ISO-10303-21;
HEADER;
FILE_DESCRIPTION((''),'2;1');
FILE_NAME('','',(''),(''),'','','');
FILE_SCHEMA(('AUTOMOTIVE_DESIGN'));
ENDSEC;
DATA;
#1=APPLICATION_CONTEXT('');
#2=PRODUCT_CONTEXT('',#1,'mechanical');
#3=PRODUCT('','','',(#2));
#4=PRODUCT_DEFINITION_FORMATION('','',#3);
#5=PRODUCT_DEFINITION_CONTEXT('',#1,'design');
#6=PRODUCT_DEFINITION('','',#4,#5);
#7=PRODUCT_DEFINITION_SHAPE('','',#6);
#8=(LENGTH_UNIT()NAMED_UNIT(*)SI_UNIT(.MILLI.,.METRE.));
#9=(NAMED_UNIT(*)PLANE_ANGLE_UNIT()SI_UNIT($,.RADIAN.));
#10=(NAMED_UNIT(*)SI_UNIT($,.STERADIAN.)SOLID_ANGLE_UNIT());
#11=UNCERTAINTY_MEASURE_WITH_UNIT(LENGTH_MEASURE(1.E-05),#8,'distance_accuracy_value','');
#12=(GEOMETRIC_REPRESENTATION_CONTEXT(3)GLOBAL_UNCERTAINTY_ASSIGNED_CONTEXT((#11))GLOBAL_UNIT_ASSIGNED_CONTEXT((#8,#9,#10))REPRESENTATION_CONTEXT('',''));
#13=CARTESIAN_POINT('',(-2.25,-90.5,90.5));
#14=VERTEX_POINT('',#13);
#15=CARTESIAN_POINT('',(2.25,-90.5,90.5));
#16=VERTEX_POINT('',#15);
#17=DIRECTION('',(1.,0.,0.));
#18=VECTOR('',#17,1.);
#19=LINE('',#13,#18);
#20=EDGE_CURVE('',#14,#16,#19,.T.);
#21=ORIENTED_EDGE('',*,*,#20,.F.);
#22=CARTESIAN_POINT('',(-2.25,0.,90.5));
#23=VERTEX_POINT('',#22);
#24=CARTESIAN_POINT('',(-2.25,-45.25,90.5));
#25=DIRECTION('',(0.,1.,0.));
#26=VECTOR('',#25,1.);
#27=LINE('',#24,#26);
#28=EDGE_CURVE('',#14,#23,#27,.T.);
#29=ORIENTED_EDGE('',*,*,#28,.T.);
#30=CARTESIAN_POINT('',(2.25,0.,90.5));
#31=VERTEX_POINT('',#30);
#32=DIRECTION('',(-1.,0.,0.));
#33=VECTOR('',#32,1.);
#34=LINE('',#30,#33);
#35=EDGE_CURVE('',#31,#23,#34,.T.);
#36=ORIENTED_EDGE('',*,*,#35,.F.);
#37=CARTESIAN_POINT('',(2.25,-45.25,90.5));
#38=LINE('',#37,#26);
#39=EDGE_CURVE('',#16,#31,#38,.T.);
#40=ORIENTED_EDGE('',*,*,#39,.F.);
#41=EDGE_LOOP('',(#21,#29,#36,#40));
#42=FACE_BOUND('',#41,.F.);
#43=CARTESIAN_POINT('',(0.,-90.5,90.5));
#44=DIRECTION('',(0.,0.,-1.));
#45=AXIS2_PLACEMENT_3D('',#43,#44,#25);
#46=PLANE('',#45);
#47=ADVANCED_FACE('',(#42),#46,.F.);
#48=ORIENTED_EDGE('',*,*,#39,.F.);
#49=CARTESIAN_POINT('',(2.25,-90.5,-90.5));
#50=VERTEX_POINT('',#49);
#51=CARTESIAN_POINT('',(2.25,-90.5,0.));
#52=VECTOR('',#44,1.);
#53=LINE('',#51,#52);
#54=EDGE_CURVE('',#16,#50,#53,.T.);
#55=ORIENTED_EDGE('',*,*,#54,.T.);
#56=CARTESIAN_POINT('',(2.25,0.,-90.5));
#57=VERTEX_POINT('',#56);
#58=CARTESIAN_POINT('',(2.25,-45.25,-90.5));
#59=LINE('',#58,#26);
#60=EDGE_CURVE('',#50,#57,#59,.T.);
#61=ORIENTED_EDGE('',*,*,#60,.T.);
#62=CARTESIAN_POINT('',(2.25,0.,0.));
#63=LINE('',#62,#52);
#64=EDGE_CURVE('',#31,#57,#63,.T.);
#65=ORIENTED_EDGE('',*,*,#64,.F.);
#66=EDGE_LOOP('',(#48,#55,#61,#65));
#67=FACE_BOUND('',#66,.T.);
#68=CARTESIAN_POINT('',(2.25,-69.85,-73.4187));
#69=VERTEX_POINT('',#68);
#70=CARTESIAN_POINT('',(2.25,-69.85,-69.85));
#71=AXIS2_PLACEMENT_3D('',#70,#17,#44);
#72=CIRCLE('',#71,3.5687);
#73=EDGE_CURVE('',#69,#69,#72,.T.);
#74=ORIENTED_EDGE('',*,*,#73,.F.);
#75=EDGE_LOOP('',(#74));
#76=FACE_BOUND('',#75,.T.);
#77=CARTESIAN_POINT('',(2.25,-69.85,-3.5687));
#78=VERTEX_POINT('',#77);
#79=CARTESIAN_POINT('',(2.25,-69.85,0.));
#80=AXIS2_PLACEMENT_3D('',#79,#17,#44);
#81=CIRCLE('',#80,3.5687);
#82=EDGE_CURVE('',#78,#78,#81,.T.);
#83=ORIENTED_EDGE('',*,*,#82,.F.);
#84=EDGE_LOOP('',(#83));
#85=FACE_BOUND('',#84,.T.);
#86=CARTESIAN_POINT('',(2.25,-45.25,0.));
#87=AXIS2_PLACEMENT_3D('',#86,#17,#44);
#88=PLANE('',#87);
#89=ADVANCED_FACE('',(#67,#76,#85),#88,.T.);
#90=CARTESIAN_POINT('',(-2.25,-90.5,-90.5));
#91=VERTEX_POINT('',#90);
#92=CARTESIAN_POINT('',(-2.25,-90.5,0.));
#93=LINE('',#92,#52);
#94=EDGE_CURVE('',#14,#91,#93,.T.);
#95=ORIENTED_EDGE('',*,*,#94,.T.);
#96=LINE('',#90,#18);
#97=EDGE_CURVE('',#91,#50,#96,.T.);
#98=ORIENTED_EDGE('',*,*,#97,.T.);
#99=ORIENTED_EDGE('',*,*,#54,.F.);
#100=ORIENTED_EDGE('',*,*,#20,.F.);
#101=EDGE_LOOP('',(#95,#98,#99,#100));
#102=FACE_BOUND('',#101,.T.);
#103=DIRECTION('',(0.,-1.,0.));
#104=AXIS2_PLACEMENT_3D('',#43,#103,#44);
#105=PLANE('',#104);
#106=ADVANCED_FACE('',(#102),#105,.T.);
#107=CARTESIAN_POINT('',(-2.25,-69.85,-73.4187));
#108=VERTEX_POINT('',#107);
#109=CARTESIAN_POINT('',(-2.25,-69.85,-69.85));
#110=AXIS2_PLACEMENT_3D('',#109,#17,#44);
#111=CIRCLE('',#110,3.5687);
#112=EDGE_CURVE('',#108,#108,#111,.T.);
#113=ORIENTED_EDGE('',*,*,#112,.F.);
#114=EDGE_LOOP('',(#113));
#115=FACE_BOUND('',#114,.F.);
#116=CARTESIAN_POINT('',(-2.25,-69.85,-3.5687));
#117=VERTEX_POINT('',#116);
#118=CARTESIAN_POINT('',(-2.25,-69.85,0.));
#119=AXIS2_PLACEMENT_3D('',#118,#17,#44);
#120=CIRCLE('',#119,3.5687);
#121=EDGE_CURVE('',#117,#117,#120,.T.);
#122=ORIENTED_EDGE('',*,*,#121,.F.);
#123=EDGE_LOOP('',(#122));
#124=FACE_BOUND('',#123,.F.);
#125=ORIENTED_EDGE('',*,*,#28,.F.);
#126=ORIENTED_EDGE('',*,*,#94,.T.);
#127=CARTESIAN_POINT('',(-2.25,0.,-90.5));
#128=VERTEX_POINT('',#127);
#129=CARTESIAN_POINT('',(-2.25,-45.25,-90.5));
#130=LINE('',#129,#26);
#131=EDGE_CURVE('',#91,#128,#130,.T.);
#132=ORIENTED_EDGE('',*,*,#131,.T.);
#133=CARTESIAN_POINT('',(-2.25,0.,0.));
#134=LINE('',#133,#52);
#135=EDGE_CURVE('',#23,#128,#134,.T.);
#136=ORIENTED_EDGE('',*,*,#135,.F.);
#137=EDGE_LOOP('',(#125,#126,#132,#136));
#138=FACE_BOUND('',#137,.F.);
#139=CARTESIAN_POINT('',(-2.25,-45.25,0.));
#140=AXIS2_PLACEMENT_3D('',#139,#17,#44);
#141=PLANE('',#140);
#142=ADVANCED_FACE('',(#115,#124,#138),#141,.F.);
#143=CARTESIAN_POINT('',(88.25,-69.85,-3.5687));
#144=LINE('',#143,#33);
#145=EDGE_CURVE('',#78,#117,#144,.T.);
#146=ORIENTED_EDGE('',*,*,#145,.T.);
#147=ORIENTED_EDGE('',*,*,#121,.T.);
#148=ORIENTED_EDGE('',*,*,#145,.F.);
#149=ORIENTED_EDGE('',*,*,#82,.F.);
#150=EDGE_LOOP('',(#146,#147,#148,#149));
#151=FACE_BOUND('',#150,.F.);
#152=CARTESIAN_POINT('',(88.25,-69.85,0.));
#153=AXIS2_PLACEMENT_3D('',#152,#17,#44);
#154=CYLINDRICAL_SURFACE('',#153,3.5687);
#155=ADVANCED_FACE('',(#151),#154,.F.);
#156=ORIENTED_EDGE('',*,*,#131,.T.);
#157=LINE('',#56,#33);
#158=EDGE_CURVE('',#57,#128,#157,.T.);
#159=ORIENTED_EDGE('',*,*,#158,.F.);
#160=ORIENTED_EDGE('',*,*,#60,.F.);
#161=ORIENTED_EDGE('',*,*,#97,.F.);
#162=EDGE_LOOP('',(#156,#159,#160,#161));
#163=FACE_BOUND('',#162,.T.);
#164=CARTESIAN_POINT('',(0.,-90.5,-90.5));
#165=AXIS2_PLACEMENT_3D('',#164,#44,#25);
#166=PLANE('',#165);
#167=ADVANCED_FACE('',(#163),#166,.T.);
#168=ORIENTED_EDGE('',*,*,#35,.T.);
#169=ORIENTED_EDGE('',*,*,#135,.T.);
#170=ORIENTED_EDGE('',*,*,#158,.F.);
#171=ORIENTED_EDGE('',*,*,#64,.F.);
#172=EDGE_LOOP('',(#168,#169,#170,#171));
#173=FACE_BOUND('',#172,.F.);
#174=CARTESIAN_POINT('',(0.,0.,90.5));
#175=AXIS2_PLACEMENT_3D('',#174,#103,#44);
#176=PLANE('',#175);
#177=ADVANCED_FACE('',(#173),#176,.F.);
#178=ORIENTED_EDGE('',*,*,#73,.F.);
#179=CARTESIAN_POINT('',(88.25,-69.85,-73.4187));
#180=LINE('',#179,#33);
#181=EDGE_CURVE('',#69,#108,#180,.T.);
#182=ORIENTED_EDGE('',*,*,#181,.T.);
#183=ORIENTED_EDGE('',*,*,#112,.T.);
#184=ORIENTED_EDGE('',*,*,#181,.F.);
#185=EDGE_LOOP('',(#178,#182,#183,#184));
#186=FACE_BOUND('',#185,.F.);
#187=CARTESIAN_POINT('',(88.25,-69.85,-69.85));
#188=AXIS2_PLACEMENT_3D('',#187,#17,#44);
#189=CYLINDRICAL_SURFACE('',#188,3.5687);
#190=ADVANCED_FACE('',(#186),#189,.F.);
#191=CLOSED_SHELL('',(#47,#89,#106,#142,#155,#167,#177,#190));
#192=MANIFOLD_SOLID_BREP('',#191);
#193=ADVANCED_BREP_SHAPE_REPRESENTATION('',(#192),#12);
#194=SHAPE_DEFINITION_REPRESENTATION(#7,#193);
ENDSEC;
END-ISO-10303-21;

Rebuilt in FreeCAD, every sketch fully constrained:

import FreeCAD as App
import Part
import Sketcher
from FreeCAD import Vector

doc = App.newDocument("Part")
body = doc.addObject("PartDesign::Body", "Body")

# Sketch on YZ plane
sketch1 = doc.addObject("Sketcher::SketchObject", "Sketch")
body.addObject(sketch1)
sketch1.AttachmentSupport = (doc.YZ_Plane, [""])
sketch1.MapMode = "FlatFace"
sketch1.addGeometry([
    Part.LineSegment(Vector(0, 90, 0), Vector(-90, 90, 0)),
    Part.LineSegment(Vector(-90, 90, 0), Vector(-90, -90, 0)),
    Part.LineSegment(Vector(-90, -90, 0), Vector(0, -90, 0)),
    Part.LineSegment(Vector(0, -90, 0), Vector(0, 90, 0)),
], False)
sketch1.addConstraint([
    Sketcher.Constraint("Coincident", 0, 2, 1, 1),
    Sketcher.Constraint("Coincident", 1, 2, 2, 1),
    Sketcher.Constraint("Coincident", 2, 2, 3, 1),
    Sketcher.Constraint("Coincident", 3, 2, 0, 1),
    Sketcher.Constraint("Horizontal", 0),
    Sketcher.Constraint("Vertical", 1),
    Sketcher.Constraint("Horizontal", 2),
    Sketcher.Constraint("Vertical", 3),
    Sketcher.Constraint("Symmetric", 2, 2, 3, 2, -1, 1),
    Sketcher.Constraint("DistanceY", 1, 2, 1, 1, 181.0),
    Sketcher.Constraint("DistanceX", 0, 2, 0, 1, 90.5),
])
pad1 = doc.addObject("PartDesign::Pad", "Pad")
body.addObject(pad1)
pad1.Profile = sketch1
pad1.Length = 4.5
pad1.Midplane = True

# Sketch on YZ plane
sketch2 = doc.addObject("Sketcher::SketchObject", "Sketch001")
body.addObject(sketch2)
sketch2.AttachmentSupport = (doc.YZ_Plane, [""])
sketch2.MapMode = "FlatFace"
sketch2.AttachmentOffset = App.Placement(Vector(0, 0, 88.25), App.Rotation())
sketch2.addGeometry([
    Part.Circle(Vector(-69.8, 0, 0), Vector(0, 0, 1), 3.6),
    Part.Circle(Vector(-69.8, -69.8, 0), Vector(0, 0, 1), 3.6),
], False)
sketch2.addConstraint([
    Sketcher.Constraint("Equal", 0, 1),
    Sketcher.Constraint("PointOnObject", 0, 3, -1),
    Sketcher.Constraint("Vertical", 0, 3, 1, 3),
    Sketcher.Constraint("Diameter", 0, 7.1374),
    Sketcher.Constraint("DistanceX", 0, 3, -1, 1, 69.85),
    Sketcher.Constraint("DistanceY", 1, 3, -1, 1, 69.85),
])
pocket1 = doc.addObject("PartDesign::Pocket", "Pocket")
body.addObject(pocket1)
pocket1.Profile = sketch2
pocket1.Type = "ThroughAll"
pocket1.Midplane = True

doc.recompute()
